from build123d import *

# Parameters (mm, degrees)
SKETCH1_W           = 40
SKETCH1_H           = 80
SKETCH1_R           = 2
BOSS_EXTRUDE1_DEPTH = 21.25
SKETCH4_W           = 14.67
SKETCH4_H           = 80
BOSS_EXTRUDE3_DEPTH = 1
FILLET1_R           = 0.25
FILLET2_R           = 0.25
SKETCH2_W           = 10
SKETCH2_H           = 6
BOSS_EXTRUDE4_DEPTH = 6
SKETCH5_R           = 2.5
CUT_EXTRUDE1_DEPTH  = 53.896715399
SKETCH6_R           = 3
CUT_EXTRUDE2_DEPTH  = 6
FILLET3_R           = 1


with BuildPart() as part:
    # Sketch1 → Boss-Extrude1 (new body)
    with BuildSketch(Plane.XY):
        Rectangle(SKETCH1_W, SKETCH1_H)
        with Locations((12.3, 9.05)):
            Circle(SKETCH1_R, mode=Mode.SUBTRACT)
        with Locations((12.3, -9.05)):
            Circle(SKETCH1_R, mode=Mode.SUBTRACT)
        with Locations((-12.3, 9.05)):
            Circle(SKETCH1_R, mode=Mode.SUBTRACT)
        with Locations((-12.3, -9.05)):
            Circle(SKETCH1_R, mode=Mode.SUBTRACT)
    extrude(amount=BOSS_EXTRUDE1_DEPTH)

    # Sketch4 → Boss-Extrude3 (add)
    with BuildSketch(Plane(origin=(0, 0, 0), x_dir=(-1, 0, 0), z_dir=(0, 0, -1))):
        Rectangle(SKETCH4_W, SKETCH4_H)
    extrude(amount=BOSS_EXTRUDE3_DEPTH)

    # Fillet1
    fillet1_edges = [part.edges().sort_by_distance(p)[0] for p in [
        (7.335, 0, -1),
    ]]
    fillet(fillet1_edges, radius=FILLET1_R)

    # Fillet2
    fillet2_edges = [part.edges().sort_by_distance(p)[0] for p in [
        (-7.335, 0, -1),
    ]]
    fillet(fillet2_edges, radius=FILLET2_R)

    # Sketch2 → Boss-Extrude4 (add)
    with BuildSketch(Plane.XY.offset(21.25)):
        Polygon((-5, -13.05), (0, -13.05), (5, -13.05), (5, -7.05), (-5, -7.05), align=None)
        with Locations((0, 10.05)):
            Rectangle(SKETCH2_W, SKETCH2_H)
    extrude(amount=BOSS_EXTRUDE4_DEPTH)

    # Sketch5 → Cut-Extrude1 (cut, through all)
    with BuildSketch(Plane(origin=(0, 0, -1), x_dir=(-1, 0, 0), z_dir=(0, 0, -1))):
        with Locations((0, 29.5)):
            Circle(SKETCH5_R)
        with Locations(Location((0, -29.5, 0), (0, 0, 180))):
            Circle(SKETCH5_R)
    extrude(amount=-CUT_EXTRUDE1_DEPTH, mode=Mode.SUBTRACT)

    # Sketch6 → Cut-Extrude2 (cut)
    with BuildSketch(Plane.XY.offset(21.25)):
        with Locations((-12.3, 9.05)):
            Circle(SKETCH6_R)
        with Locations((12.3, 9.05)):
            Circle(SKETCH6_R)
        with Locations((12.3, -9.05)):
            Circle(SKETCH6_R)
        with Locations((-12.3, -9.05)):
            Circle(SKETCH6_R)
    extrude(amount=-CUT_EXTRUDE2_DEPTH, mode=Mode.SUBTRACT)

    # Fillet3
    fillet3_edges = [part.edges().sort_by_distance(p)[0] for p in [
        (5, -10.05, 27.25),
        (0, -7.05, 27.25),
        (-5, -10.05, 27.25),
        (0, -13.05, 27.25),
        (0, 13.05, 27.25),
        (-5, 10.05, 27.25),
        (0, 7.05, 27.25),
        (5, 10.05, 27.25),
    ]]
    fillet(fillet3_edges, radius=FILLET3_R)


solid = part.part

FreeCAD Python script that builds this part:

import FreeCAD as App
import Part
import Sketcher


def edges_at(feature, points):
    """Names of the edges that pass closest to the given points."""
    edges = feature.Shape.Edges
    near = lambda p: min(range(len(edges)), key=lambda i: edges[i].distToShape(Part.Vertex(*p))[0])
    return sorted({f"Edge{near(p) + 1}" for p in points})


def add_polygon(sketch, points):
    """Adds a closed chain of lines whose ends are joined by coincident constraints."""
    first, n = sketch.GeometryCount, len(points)
    for a, b in zip(points, points[1:] + points[:1]):
        sketch.addGeometry(Part.LineSegment(App.Vector(*a, 0), App.Vector(*b, 0)), False)
    for i in range(n):
        sketch.addConstraint(Sketcher.Constraint("Coincident", first + i, 2, first + (i + 1) % n, 1))

doc = App.newDocument("Part")
params = doc.addObject("Spreadsheet::Sheet", "Params")
for row, (alias, value) in enumerate([
    ("sketch1_diameter", "4 mm"),
    ("sketch1_width", "40 mm"),
    ("sketch1_height", "80 mm"),
    ("pad1_length", "21.25 mm"),
    ("sketch2_height", "80 mm"),
    ("sketch2_width", "14.67 mm"),
    ("pad2_length", "1 mm"),
    ("fillet_radius", "0.25 mm"),
    ("fillet2_radius", "0.25 mm"),
    ("sketch3_width", "10 mm"),
    ("sketch3_height", "6 mm"),
    ("pad3_length", "6 mm"),
    ("sketch4_diameter", "5 mm"),
    ("sketch5_diameter", "6 mm"),
    ("pocket2_length", "6 mm"),
    ("fillet3_radius", "1 mm"),
], start=1):
    params.set(f"A{row}", alias)
    params.set(f"B{row}", "=" + value)
    params.setAlias(f"B{row}", alias)

body = doc.addObject("PartDesign::Body", "Body")

# Sketch on XY plane
sketch1 = body.newObject("Sketcher::SketchObject", "Sketch")
sketch1.AttachmentSupport = (doc.getObject("XY_Plane"), [""])
sketch1.MapMode = "FlatFace"
add_polygon(sketch1, [(-20, 40), (-20, -40), (20, -40), (20, 40)])  # lines 0-3
sketch1.addGeometry(Part.Circle(App.Vector(-12.3, -9.05, 0), App.Vector(0, 0, 1), 2), False)  # 4
sketch1.addGeometry(Part.Circle(App.Vector(12.3, -9.05, 0), App.Vector(0, 0, 1), 2), False)  # 5
sketch1.addGeometry(Part.Circle(App.Vector(-12.3, 9.05, 0), App.Vector(0, 0, 1), 2), False)  # 6
sketch1.addGeometry(Part.Circle(App.Vector(12.3, 9.05, 0), App.Vector(0, 0, 1), 2), False)  # 7
sketch1.addConstraint(Sketcher.Constraint("Vertical", 0))
sketch1.addConstraint(Sketcher.Constraint("Horizontal", 1))
sketch1.addConstraint(Sketcher.Constraint("Vertical", 2))
sketch1.addConstraint(Sketcher.Constraint("Horizontal", 3))
sketch1.addConstraint(Sketcher.Constraint("Equal", 4, 5))
sketch1.addConstraint(Sketcher.Constraint("Equal", 5, 6))
sketch1.addConstraint(Sketcher.Constraint("Equal", 6, 7))
sketch1.addConstraint(Sketcher.Constraint("Symmetric", 5, 3, 6, 3, -1, 1))
sketch1.addConstraint(Sketcher.Constraint("Symmetric", 4, 3, 7, 3, -1, 1))
sketch1.addConstraint(Sketcher.Constraint("Symmetric", 0, 2, 2, 2, -1, 1))
sketch1.addConstraint(Sketcher.Constraint("Symmetric", 4, 3, 5, 3, -2))
sketch1.addConstraint(Sketcher.Constraint("Diameter", 4, 4.0))
sketch1.addConstraint(Sketcher.Constraint("DistanceX", 1, 1, 1, 2, 40.0))
sketch1.addConstraint(Sketcher.Constraint("DistanceY", 0, 2, 0, 1, 80.0))
sketch1.addConstraint(Sketcher.Constraint("DistanceX", 4, 3, -1, 1, 12.3))
sketch1.addConstraint(Sketcher.Constraint("DistanceY", 4, 3, 6, 3, 18.1))
sketch1.setExpression("Constraints[15]", "Params.sketch1_diameter")
sketch1.setExpression("Constraints[16]", "Params.sketch1_width")
sketch1.setExpression("Constraints[17]", "Params.sketch1_height")
pad1 = body.newObject("PartDesign::Pad", "Pad")
pad1.Profile = sketch1
pad1.setExpression("Length", "Params.pad1_length")

# Sketch on XY plane
sketch2 = body.newObject("Sketcher::SketchObject", "Sketch001")
sketch2.AttachmentSupport = (doc.getObject("XY_Plane"), [""])
sketch2.MapMode = "FlatFace"
add_polygon(sketch2, [(7.335, 40), (7.335, -40), (-7.335, -40), (-7.335, 40)])  # lines 0-3
sketch2.addConstraint(Sketcher.Constraint("Vertical", 0))
sketch2.addConstraint(Sketcher.Constraint("Horizontal", 1))
sketch2.addConstraint(Sketcher.Constraint("Vertical", 2))
sketch2.addConstraint(Sketcher.Constraint("Horizontal", 3))
sketch2.addConstraint(Sketcher.Constraint("Symmetric", 0, 2, 2, 2, -1, 1))
sketch2.addConstraint(Sketcher.Constraint("DistanceY", 0, 2, 0, 1, 80.0))
sketch2.addConstraint(Sketcher.Constraint("DistanceX", 1, 2, 1, 1, 14.67))
sketch2.setExpression("Constraints[9]", "Params.sketch2_height")
sketch2.setExpression("Constraints[10]", "Params.sketch2_width")
pad2 = body.newObject("PartDesign::Pad", "Pad001")
pad2.Profile = sketch2
pad2.setExpression("Length", "Params.pad2_length")
pad2.Reversed = True
doc.recompute()

fillet = body.newObject("PartDesign::Fillet", "Fillet")
fillet.Base = (pad2, edges_at(pad2, [(7.335, 0, -1)]))
fillet.setExpression("Radius", "Params.fillet_radius")
doc.recompute()

fillet2 = body.newObject("PartDesign::Fillet", "Fillet001")
fillet2.Base = (fillet, edges_at(fillet, [(-7.335, 0, -1)]))
fillet2.setExpression("Radius", "Params.fillet2_radius")

# Sketch on XY plane
sketch3 = body.newObject("Sketcher::SketchObject", "Sketch002")
sketch3.AttachmentSupport = (doc.getObject("XY_Plane"), [""])
sketch3.MapMode = "FlatFace"
sketch3.AttachmentOffset = App.Placement(App.Vector(0, 0, 21.25), App.Rotation())
add_polygon(sketch3, [(-5, -13.05), (5, -13.05), (5, -7.05), (-5, -7.05)])  # lines 0-3
add_polygon(sketch3, [(-5, 13.05), (-5, 7.05), (5, 7.05), (5, 13.05)])  # lines 4-7
sketch3.addConstraint(Sketcher.Constraint("Horizontal", 0))
sketch3.addConstraint(Sketcher.Constraint("Vertical", 1))
sketch3.addConstraint(Sketcher.Constraint("Horizontal", 2))
sketch3.addConstraint(Sketcher.Constraint("Vertical", 3))
sketch3.addConstraint(Sketcher.Constraint("Vertical", 4))
sketch3.addConstraint(Sketcher.Constraint("Horizontal", 5))
sketch3.addConstraint(Sketcher.Constraint("Vertical", 6))
sketch3.addConstraint(Sketcher.Constraint("Horizontal", 7))
sketch3.addConstraint(Sketcher.Constraint("Symmetric", 1, 2, 4, 2, -1, 1))
sketch3.addConstraint(Sketcher.Constraint("Symmetric", 3, 2, 6, 2, -1, 1))
sketch3.addConstraint(Sketcher.Constraint("Vertical", 3, 2, 4, 2))
sketch3.addConstraint(Sketcher.Constraint("DistanceX", 0, 1, 0, 2, 10.0))
sketch3.addConstraint(Sketcher.Constraint("DistanceY", 1, 1, 1, 2, 6.0))
sketch3.addConstraint(Sketcher.Constraint("DistanceY", 2, 2, 4, 2, 14.1))
sketch3.setExpression("Constraints[19]", "Params.sketch3_width")
sketch3.setExpression("Constraints[20]", "Params.sketch3_height")
pad3 = body.newObject("PartDesign::Pad", "Pad002")
pad3.Profile = sketch3
pad3.setExpression("Length", "Params.pad3_length")

# Sketch on XY plane
sketch4 = body.newObject("Sketcher::SketchObject", "Sketch003")
sketch4.AttachmentSupport = (doc.getObject("XY_Plane"), [""])
sketch4.MapMode = "FlatFace"
sketch4.AttachmentOffset = App.Placement(App.Vector(0, 0, -1), App.Rotation())
sketch4.addGeometry(Part.Circle(App.Vector(0, 29.5, 0), App.Vector(0, 0, 1), 2.5), False)
sketch4.addGeometry(Part.Circle(App.Vector(0, -29.5, 0), App.Vector(0, 0, 1), 2.5), False)
sketch4.addConstraint(Sketcher.Constraint("Equal", 0, 1))
sketch4.addConstraint(Sketcher.Constraint("Symmetric", 0, 3, 1, 3, -1, 1))
sketch4.addConstraint(Sketcher.Constraint("PointOnObject", 0, 3, -2))
sketch4.addConstraint(Sketcher.Constraint("Diameter", 0, 5.0))
sketch4.addConstraint(Sketcher.Constraint("DistanceY", 1, 3, 0, 3, 59.0))
sketch4.setExpression("Constraints[3]", "Params.sketch4_diameter")
pocket1 = body.newObject("PartDesign::Pocket", "Pocket")
pocket1.Profile = sketch4
pocket1.Type = "ThroughAll"
pocket1.Reversed = True

# Sketch on XY plane
sketch5 = body.newObject("Sketcher::SketchObject", "Sketch004")
sketch5.AttachmentSupport = (doc.getObject("XY_Plane"), [""])
sketch5.MapMode = "FlatFace"
sketch5.AttachmentOffset = App.Placement(App.Vector(0, 0, 21.25), App.Rotation())
sketch5.addGeometry(Part.Circle(App.Vector(-12.3, 9.05, 0), App.Vector(0, 0, 1), 3), False)
sketch5.addGeometry(Part.Circle(App.Vector(12.3, 9.05, 0), App.Vector(0, 0, 1), 3), False)
sketch5.addGeometry(Part.Circle(App.Vector(12.3, -9.05, 0), App.Vector(0, 0, 1), 3), False)
sketch5.addGeometry(Part.Circle(App.Vector(-12.3, -9.05, 0), App.Vector(0, 0, 1), 3), False)
sketch5.addConstraint(Sketcher.Constraint("Equal", 0, 1))
sketch5.addConstraint(Sketcher.Constraint("Equal", 1, 2))
sketch5.addConstraint(Sketcher.Constraint("Equal", 2, 3))
sketch5.addConstraint(Sketcher.Constraint("Symmetric", 0, 3, 2, 3, -1, 1))
sketch5.addConstraint(Sketcher.Constraint("Symmetric", 1, 3, 3, 3, -1, 1))
sketch5.addConstraint(Sketcher.Constraint("Symmetric", 0, 3, 1, 3, -2))
sketch5.addConstraint(Sketcher.Constraint("Diameter", 0, 6.0))
sketch5.addConstraint(Sketcher.Constraint("DistanceX", 0, 3, -1, 1, 12.3))
sketch5.addConstraint(Sketcher.Constraint("DistanceY", 2, 3, 1, 3, 18.1))
sketch5.setExpression("Constraints[6]", "Params.sketch5_diameter")
pocket2 = body.newObject("PartDesign::Pocket", "Pocket001")
pocket2.Profile = sketch5
pocket2.setExpression("Length", "Params.pocket2_length")
doc.recompute()

fillet3 = body.newObject("PartDesign::Fillet", "Fillet002")
fillet3.Base = (pocket2, edges_at(pocket2, [
    (5, -10.05, 27.25),
    (0, -7.05, 27.25),
    (-5, -10.05, 27.25),
    (0, -13.05, 27.25),
    (0, 13.05, 27.25),
    (-5, 10.05, 27.25),
    (0, 7.05, 27.25),
    (5, 10.05, 27.25),
]))
fillet3.setExpression("Radius", "Params.fillet3_radius")

doc.recompute()
